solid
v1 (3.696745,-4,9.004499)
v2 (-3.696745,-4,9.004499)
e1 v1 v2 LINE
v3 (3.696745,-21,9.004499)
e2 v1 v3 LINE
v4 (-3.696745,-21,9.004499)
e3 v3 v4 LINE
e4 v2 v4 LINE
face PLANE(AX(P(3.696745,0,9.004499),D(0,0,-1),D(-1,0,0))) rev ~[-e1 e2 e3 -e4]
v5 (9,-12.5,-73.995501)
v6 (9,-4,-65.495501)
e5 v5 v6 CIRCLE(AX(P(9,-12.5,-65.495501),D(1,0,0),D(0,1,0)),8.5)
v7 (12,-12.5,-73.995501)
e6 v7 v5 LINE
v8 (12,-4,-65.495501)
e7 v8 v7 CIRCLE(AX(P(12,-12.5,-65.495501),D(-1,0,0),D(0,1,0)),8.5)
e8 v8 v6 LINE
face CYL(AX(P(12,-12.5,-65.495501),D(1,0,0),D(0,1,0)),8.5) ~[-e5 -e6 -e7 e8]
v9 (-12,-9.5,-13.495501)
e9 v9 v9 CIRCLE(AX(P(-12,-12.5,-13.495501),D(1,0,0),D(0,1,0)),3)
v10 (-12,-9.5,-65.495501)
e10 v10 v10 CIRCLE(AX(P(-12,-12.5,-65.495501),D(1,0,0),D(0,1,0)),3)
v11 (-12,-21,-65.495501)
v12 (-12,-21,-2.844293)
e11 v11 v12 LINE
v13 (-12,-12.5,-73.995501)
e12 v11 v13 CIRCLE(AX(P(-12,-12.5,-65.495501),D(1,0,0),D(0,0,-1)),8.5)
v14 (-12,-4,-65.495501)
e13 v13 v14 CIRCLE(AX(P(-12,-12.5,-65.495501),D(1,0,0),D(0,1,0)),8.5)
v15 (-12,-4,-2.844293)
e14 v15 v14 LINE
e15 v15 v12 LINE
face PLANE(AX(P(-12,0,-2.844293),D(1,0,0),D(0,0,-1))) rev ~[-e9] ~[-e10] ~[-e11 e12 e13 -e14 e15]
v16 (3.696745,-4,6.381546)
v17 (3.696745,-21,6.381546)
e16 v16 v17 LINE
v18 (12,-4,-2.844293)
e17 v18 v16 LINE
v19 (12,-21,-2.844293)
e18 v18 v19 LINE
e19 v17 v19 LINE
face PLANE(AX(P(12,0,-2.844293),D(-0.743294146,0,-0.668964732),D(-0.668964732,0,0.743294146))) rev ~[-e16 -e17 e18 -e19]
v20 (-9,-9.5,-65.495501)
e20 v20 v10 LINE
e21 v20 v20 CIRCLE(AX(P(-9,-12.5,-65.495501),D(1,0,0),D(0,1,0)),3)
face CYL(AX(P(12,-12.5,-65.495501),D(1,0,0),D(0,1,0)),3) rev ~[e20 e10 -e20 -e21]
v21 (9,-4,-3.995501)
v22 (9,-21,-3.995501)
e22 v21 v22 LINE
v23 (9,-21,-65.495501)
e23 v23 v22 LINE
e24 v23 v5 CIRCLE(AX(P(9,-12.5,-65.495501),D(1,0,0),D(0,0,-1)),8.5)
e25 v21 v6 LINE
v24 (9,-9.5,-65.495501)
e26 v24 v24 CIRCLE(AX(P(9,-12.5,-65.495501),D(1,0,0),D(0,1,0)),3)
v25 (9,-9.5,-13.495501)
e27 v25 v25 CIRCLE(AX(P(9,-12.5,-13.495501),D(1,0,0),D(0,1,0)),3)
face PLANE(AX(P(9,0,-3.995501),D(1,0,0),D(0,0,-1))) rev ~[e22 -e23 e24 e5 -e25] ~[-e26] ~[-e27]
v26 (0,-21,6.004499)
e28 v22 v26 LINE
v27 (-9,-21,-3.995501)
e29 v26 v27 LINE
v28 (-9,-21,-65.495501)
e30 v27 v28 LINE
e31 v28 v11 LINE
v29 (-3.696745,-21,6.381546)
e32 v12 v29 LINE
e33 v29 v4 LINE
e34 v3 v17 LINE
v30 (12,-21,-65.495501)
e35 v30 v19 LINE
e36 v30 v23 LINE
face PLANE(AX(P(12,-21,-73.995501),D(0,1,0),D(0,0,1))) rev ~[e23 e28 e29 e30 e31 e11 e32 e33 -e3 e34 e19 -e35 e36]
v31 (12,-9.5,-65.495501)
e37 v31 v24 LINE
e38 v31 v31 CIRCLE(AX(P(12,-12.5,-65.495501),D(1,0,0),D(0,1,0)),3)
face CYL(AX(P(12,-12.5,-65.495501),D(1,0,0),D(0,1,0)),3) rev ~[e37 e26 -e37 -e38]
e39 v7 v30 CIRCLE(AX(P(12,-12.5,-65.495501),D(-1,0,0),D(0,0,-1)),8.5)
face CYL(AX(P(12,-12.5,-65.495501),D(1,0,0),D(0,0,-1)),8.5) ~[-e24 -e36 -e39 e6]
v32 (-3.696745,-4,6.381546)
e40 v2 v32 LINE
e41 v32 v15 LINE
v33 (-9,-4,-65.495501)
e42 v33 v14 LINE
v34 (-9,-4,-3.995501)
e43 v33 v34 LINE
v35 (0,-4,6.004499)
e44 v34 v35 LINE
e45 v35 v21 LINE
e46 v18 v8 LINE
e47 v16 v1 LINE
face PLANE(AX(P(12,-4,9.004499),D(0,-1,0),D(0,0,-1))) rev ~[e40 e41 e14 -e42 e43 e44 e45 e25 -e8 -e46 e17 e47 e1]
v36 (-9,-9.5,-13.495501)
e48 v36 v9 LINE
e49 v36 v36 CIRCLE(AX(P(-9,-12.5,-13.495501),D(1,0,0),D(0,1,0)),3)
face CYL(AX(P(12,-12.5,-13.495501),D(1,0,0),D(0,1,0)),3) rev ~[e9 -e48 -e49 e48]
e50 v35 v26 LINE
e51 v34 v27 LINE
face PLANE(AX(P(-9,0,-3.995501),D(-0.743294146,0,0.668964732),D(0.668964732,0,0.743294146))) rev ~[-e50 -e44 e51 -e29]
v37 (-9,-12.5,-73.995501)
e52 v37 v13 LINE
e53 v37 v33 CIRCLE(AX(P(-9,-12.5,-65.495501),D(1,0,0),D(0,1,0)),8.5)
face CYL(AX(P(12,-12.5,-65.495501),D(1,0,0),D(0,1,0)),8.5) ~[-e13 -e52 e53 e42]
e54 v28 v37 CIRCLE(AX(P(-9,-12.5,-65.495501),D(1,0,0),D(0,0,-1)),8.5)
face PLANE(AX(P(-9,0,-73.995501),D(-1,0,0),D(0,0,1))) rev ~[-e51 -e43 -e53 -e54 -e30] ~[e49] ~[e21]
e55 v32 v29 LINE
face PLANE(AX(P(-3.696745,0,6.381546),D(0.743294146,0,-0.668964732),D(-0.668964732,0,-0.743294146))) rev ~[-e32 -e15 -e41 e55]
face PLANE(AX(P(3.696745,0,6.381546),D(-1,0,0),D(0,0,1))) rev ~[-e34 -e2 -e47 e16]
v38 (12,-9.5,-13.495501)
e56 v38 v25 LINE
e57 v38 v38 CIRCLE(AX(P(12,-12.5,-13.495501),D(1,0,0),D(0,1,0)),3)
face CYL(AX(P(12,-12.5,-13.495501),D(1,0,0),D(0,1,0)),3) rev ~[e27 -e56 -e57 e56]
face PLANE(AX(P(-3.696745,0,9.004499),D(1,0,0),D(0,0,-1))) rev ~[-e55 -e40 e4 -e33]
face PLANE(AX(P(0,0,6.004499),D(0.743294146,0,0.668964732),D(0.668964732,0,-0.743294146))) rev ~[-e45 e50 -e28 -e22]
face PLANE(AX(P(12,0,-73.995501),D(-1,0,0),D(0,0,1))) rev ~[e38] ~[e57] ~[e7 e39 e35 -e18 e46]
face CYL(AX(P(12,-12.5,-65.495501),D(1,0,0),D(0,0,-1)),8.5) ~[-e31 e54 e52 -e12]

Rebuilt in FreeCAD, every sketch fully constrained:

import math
import FreeCAD as App
import Part
import Sketcher

doc = App.newDocument("Part")
body = doc.addObject("PartDesign::Body", "Body")

# Sketch on XZ plane
sketch1 = body.newObject("Sketcher::SketchObject", "Sketch")
sketch1.AttachmentSupport = (doc.getObject("XZ_Plane"), [""])
sketch1.MapMode = "FlatFace"
sketch1.addGeometry([
    Part.LineSegment(App.Vector(9, -73.995501, 0), App.Vector(12, -73.995501, 0)),  # 0
    Part.LineSegment(App.Vector(12, -73.995501, 0), App.Vector(12, -2.844293, 0)),  # 1
    Part.LineSegment(App.Vector(12, -2.844293, 0), App.Vector(3.696745, 6.381546, 0)),  # 2
    Part.LineSegment(App.Vector(3.696745, 6.381546, 0), App.Vector(3.696745, 9.004499, 0)),  # 3
    Part.LineSegment(App.Vector(3.696745, 9.004499, 0), App.Vector(-3.696745, 9.004499, 0)),  # 4
    Part.LineSegment(App.Vector(-3.696745, 9.004499, 0), App.Vector(-3.696745, 6.381546, 0)),  # 5
    Part.LineSegment(App.Vector(-3.696745, 6.381546, 0), App.Vector(-12, -2.844293, 0)),  # 6
    Part.LineSegment(App.Vector(-12, -2.844293, 0), App.Vector(-12, -73.995501, 0)),  # 7
    Part.LineSegment(App.Vector(-12, -73.995501, 0), App.Vector(-9, -73.995501, 0)),  # 8
    Part.LineSegment(App.Vector(-9, -73.995501, 0), App.Vector(-9, -3.995501, 0)),  # 9
    Part.LineSegment(App.Vector(-9, -3.995501, 0), App.Vector(0, 6.004499, 0)),  # 10
    Part.LineSegment(App.Vector(0, 6.004499, 0), App.Vector(9, -3.995501, 0)),  # 11
    Part.LineSegment(App.Vector(9, -3.995501, 0), App.Vector(9, -73.995501, 0)),  # 12
], False)
sketch1.addConstraint([
    Sketcher.Constraint("Coincident", 0, 2, 1, 1),
    Sketcher.Constraint("Coincident", 1, 2, 2, 1),
    Sketcher.Constraint("Coincident", 2, 2, 3, 1),
    Sketcher.Constraint("Coincident", 3, 2, 4, 1),
    Sketcher.Constraint("Coincident", 4, 2, 5, 1),
    Sketcher.Constraint("Coincident", 5, 2, 6, 1),
    Sketcher.Constraint("Coincident", 6, 2, 7, 1),
    Sketcher.Constraint("Coincident", 7, 2, 8, 1),
    Sketcher.Constraint("Coincident", 8, 2, 9, 1),
    Sketcher.Constraint("Coincident", 9, 2, 10, 1),
    Sketcher.Constraint("Coincident", 10, 2, 11, 1),
    Sketcher.Constraint("Coincident", 11, 2, 12, 1),
    Sketcher.Constraint("Coincident", 12, 2, 0, 1),
    Sketcher.Constraint("Horizontal", 0),
    Sketcher.Constraint("Vertical", 1),
    Sketcher.Constraint("Vertical", 3),
    Sketcher.Constraint("Horizontal", 4),
    Sketcher.Constraint("Vertical", 5),
    Sketcher.Constraint("Vertical", 7),
    Sketcher.Constraint("Horizontal", 8),
    Sketcher.Constraint("Vertical", 9),
    Sketcher.Constraint("Vertical", 12),
    Sketcher.Constraint("Symmetric", 2, 2, 5, 2, -2),
    Sketcher.Constraint("Symmetric", 1, 2, 6, 2, -2),
    Sketcher.Constraint("Symmetric", 9, 2, 11, 2, -2),
    Sketcher.Constraint("PointOnObject", 10, 2, -2),
    Sketcher.Constraint("Parallel", 6, 10),
    Sketcher.Constraint("Horizontal", 0, 2, 7, 2),
    Sketcher.Constraint("DistanceX", 0, 1, 0, 2, 3.0),
    Sketcher.Constraint("DistanceY", 9, 1, 9, 2, 70.0),
    Sketcher.Constraint("DistanceX", -1, 1, 0, 2, 12.0),
    Sketcher.Constraint("DistanceY", 0, 2, 3, 2, 83.0),
    Sketcher.Constraint("DistanceY", 10, 2, 3, 2, 3.0),
    Sketcher.Constraint("DistanceX", 4, 2, 4, 1, 7.39349),
    Sketcher.Constraint("DistanceY", 1, 1, 1, 2, 71.151208),
    Sketcher.Constraint("DistanceY", 0, 2, -1, 1, 73.995501),
])
pad1 = body.newObject("PartDesign::Pad", "Pad")
pad1.Profile = sketch1
pad1.Length = 25

# Sketch on YZ plane
sketch2 = body.newObject("Sketcher::SketchObject", "Sketch001")
sketch2.AttachmentSupport = (doc.getObject("YZ_Plane"), [""])
sketch2.MapMode = "FlatFace"
sketch2.AttachmentOffset = App.Placement(App.Vector(0, 0, 12), App.Rotation())
sketch2.addGeometry([
    Part.LineSegment(App.Vector(-25, -73.995501, 0), App.Vector(-21, -73.995501, 0)),  # 0
    Part.LineSegment(App.Vector(-21, -73.995501, 0), App.Vector(-21, 9.004499, 0)),  # 1
    Part.LineSegment(App.Vector(-21, 9.004499, 0), App.Vector(-27.979406, 9.004499, 0)),  # 2
    Part.LineSegment(App.Vector(-27.979406, 9.004499, 0), App.Vector(-27.979406, -73.995501, 0)),  # 3
    Part.LineSegment(App.Vector(-27.979406, -73.995501, 0), App.Vector(-25, -73.995501, 0)),  # 4
    Part.LineSegment(App.Vector(-4, -73.995501, 0), App.Vector(3.38936, -73.995501, 0)),  # 5
    Part.LineSegment(App.Vector(3.38936, -73.995501, 0), App.Vector(3.38936, 9.004499, 0)),  # 6
    Part.LineSegment(App.Vector(3.38936, 9.004499, 0), App.Vector(-4, 9.004499, 0)),  # 7
    Part.LineSegment(App.Vector(-4, 9.004499, 0), App.Vector(-4, -73.995501, 0)),  # 8
], False)
sketch2.addConstraint([
    Sketcher.Constraint("Coincident", 0, 2, 1, 1),
    Sketcher.Constraint("Coincident", 1, 2, 2, 1),
    Sketcher.Constraint("Coincident", 2, 2, 3, 1),
    Sketcher.Constraint("Coincident", 3, 2, 4, 1),
    Sketcher.Constraint("Coincident", 4, 2, 0, 1),
    Sketcher.Constraint("Coincident", 5, 2, 6, 1),
    Sketcher.Constraint("Coincident", 6, 2, 7, 1),
    Sketcher.Constraint("Coincident", 7, 2, 8, 1),
    Sketcher.Constraint("Coincident", 8, 2, 5, 1),
    Sketcher.Constraint("Horizontal", 0),
    Sketcher.Constraint("Vertical", 1),
    Sketcher.Constraint("Horizontal", 2),
    Sketcher.Constraint("Vertical", 3),
    Sketcher.Constraint("Horizontal", 4),
    Sketcher.Constraint("Horizontal", 5),
    Sketcher.Constraint("Vertical", 6),
    Sketcher.Constraint("Horizontal", 7),
    Sketcher.Constraint("Vertical", 8),
    Sketcher.Constraint("Horizontal", 4, 2, 5, 2),
    Sketcher.Constraint("Horizontal", 2, 2, 6, 2),
    Sketcher.Constraint("DistanceX", 0, 1, 0, 2, 4.0),
    Sketcher.Constraint("DistanceY", 1, 1, 1, 2, 83.0),
    Sketcher.Constraint("DistanceX", 0, 2, -1, 1, 21.0),
    Sketcher.Constraint("DistanceX", 7, 2, -1, 1, 4.0),
    Sketcher.Constraint("DistanceX", 5, 1, 5, 2, 7.38936),
    Sketcher.Constraint("DistanceY", 0, 2, -1, 1, 73.995501),
    Sketcher.Constraint("DistanceX", 2, 2, 2, 1, 6.979406),
])
pocket1 = body.newObject("PartDesign::Pocket", "Pocket")
pocket1.Profile = sketch2
pocket1.Length = 25

# Sketch on YZ plane
sketch3 = body.newObject("Sketcher::SketchObject", "Sketch002")
sketch3.AttachmentSupport = (doc.getObject("YZ_Plane"), [""])
sketch3.MapMode = "FlatFace"
sketch3.AttachmentOffset = App.Placement(App.Vector(0, 0, 12), App.Rotation())
sketch3.addGeometry([
    Part.ArcOfCircle(Part.Circle(App.Vector(-12.5, -65.495501, 0), App.Vector(0, 0, 1), 8.5), math.radians(180), math.radians(270)),  # 0
    Part.LineSegment(App.Vector(-21, -65.495501, 0), App.Vector(-21, -73.995501, 0)),  # 1
    Part.LineSegment(App.Vector(-21, -73.995501, 0), App.Vector(-12.5, -73.995501, 0)),  # 2
    Part.ArcOfCircle(Part.Circle(App.Vector(-12.5, -65.495501, 0), App.Vector(0, 0, 1), 8.5), math.radians(-90), math.radians(0)),  # 3
    Part.LineSegment(App.Vector(-12.5, -73.995501, 0), App.Vector(-4, -73.995501, 0)),  # 4
    Part.LineSegment(App.Vector(-4, -73.995501, 0), App.Vector(-4, -65.495501, 0)),  # 5
    Part.Circle(App.Vector(-12.5, -65.495501, 0), App.Vector(0, 0, 1), 3),  # 6
    Part.Circle(App.Vector(-12.5, -13.495501, 0), App.Vector(0, 0, 1), 3),  # 7
], False)
sketch3.addConstraint([
    Sketcher.Constraint("Tangent", 0, 1, 1, 1),
    Sketcher.Constraint("Coincident", 1, 2, 2, 1),
    Sketcher.Constraint("Tangent", 2, 2, 0, 2),
    Sketcher.Constraint("Tangent", 3, 1, 4, 1),
    Sketcher.Constraint("Coincident", 4, 2, 5, 1),
    Sketcher.Constraint("Tangent", 5, 2, 3, 2),
    Sketcher.Constraint("Vertical", 1),
    Sketcher.Constraint("Horizontal", 2),
    Sketcher.Constraint("Horizontal", 4),
    Sketcher.Constraint("Vertical", 5),
    Sketcher.Constraint("Coincident", 3, 3, 0, 3),
    Sketcher.Constraint("Coincident", 6, 3, 0, 3),
    Sketcher.Constraint("Equal", 0, 3),
    Sketcher.Constraint("Equal", 6, 7),
    Sketcher.Constraint("Vertical", 6, 3, 7, 3),
    Sketcher.Constraint("Diameter", 6, 6.0),
    Sketcher.Constraint("Radius", 0, 8.5),
    Sketcher.Constraint("DistanceX", 0, 1, -1, 1, 21.0),
    Sketcher.Constraint("DistanceY", 0, 3, 7, 3, 52.0),
    Sketcher.Constraint("DistanceY", 0, 3, -1, 1, 65.495501),
])
pocket2 = body.newObject("PartDesign::Pocket", "Pocket001")
pocket2.Profile = sketch3
pocket2.Length = 25

doc.recompute()
